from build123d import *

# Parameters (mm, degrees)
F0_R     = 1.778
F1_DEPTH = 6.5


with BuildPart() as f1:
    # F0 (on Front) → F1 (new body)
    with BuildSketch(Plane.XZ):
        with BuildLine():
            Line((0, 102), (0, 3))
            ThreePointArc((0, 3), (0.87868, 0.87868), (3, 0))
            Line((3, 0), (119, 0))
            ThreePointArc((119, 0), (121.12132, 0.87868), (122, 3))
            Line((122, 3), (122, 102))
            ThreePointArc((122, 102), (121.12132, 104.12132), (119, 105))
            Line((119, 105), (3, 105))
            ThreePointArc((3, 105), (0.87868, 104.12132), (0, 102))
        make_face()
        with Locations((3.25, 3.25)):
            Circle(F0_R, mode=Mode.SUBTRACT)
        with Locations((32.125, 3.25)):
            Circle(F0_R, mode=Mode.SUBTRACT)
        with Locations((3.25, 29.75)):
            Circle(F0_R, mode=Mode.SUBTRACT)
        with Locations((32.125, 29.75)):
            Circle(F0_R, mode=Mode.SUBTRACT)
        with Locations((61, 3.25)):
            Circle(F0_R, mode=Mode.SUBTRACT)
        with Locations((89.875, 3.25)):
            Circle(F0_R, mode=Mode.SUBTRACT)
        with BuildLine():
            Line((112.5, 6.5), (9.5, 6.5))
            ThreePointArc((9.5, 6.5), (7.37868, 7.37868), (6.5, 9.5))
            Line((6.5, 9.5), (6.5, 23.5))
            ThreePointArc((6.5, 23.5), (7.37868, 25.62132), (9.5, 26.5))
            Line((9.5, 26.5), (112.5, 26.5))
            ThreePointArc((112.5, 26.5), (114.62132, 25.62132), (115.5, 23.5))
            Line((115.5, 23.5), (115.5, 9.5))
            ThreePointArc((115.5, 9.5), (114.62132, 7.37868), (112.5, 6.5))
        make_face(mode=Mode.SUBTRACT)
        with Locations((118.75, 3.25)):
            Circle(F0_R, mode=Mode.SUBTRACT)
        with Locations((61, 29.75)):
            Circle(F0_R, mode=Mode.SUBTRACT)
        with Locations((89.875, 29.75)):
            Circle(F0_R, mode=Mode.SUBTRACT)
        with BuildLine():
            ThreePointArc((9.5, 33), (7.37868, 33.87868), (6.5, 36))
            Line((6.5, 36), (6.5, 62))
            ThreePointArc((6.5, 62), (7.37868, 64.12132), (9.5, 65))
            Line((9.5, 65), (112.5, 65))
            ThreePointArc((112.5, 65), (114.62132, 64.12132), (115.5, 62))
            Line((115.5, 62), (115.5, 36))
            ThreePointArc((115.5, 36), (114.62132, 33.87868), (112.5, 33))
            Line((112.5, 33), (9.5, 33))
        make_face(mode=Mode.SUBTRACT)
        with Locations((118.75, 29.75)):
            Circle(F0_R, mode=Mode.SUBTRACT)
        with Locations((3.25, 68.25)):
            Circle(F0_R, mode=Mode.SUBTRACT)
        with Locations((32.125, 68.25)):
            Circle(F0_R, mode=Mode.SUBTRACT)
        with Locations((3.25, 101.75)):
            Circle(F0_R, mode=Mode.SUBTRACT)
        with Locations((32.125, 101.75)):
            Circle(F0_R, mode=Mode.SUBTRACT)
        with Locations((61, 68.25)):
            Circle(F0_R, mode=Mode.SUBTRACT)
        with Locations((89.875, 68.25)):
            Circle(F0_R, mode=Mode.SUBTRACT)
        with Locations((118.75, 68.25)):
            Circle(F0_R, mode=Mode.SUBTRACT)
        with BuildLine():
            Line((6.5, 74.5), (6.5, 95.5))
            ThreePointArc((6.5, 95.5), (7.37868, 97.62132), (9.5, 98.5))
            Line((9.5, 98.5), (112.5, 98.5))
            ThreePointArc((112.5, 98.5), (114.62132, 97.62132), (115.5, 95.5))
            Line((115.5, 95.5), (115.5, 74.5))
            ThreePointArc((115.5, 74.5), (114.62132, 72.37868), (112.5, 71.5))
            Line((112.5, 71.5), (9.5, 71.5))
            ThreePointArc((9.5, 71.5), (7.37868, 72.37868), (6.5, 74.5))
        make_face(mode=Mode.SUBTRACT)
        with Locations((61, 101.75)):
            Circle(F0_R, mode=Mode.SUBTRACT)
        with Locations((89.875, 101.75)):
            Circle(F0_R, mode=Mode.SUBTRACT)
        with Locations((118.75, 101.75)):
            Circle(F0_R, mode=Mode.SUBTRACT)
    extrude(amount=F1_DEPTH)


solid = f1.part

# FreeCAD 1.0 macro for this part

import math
import FreeCAD as App
import Part
import Sketcher
from FreeCAD import Vector
Q = App.Units.Quantity

doc = App.newDocument("Part")
params = doc.addObject("Spreadsheet::Sheet", "Params")
for row, (alias, value) in enumerate([
    ("sketch1_radius", "3.000001 mm"),
    ("sketch1_width", "116 mm"),
    ("sketch1_width2", "103 mm"),
    ("sketch1_height", "99 mm"),
    ("sketch1_height2", "26 mm"),
    ("pad1_length", "6.5 mm"),
], start=1):
    params.set(f"A{row}", alias)
    params.set(f"B{row}", "=" + value)
    params.setAlias(f"B{row}", alias)

body = doc.addObject("PartDesign::Body", "Body")

# Sketch on XZ plane
sketch1 = doc.addObject("Sketcher::SketchObject", "Sketch")
body.addObject(sketch1)
sketch1.AttachmentSupport = (doc.XZ_Plane, [""])
sketch1.MapMode = "FlatFace"
sketch1.addGeometry(Part.LineSegment(Vector(0, 102, 0), Vector(0, 3, 0)), False)
sketch1.addGeometry(Part.ArcOfCircle(Part.Circle(Vector(3, 3, 0), Vector(0, 0, 1), 3), math.radians(-180), math.radians(-90)), False)
sketch1.addGeometry(Part.LineSegment(Vector(3, 0, 0), Vector(119, 0, 0)), False)
sketch1.addGeometry(Part.ArcOfCircle(Part.Circle(Vector(119, 3, 0), Vector(0, 0, 1), 3), math.radians(-90), math.radians(0)), False)
sketch1.addGeometry(Part.LineSegment(Vector(122, 3, 0), Vector(122, 102, 0)), False)
sketch1.addGeometry(Part.ArcOfCircle(Part.Circle(Vector(119, 102, 0), Vector(0, 0, 1), 3), math.radians(0), math.radians(90)), False)
sketch1.addGeometry(Part.LineSegment(Vector(119, 105, 0), Vector(3, 105, 0)), False)
sketch1.addGeometry(Part.ArcOfCircle(Part.Circle(Vector(3, 102, 0), Vector(0, 0, 1), 3), math.radians(90), math.radians(180)), False)
sketch1.addGeometry(Part.Circle(Vector(3.2, 3.2, 0), Vector(0, 0, 1), 1.8), False)
sketch1.addGeometry(Part.Circle(Vector(32.1, 3.2, 0), Vector(0, 0, 1), 1.8), False)
sketch1.addGeometry(Part.Circle(Vector(61, 3.2, 0), Vector(0, 0, 1), 1.8), False)
sketch1.addGeometry(Part.Circle(Vector(3.2, 29.8, 0), Vector(0, 0, 1), 1.8), False)
sketch1.addGeometry(Part.Circle(Vector(32.1, 29.8, 0), Vector(0, 0, 1), 1.8), False)
sketch1.addGeometry(Part.Circle(Vector(61, 29.8, 0), Vector(0, 0, 1), 1.8), False)
sketch1.addGeometry(Part.LineSegment(Vector(112.5, 33, 0), Vector(9.5, 33, 0)), False)
sketch1.addGeometry(Part.ArcOfCircle(Part.Circle(Vector(9.5, 36, 0), Vector(0, 0, 1), 3), math.radians(-180), math.radians(-90)), False)
sketch1.addGeometry(Part.LineSegment(Vector(6.5, 36, 0), Vector(6.5, 62, 0)), False)
sketch1.addGeometry(Part.ArcOfCircle(Part.Circle(Vector(9.5, 62, 0), Vector(0, 0, 1), 3), math.radians(90), math.radians(180)), False)
sketch1.addGeometry(Part.LineSegment(Vector(9.5, 65, 0), Vector(112.5, 65, 0)), False)
sketch1.addGeometry(Part.ArcOfCircle(Part.Circle(Vector(112.5, 62, 0), Vector(0, 0, 1), 3), math.radians(0), math.radians(90)), False)
sketch1.addGeometry(Part.LineSegment(Vector(115.5, 62, 0), Vector(115.5, 36, 0)), False)
sketch1.addGeometry(Part.ArcOfCircle(Part.Circle(Vector(112.5, 36, 0), Vector(0, 0, 1), 3), math.radians(-90), math.radians(0)), False)
sketch1.addGeometry(Part.Circle(Vector(89.9, 3.2, 0), Vector(0, 0, 1), 1.8), False)
sketch1.addGeometry(Part.ArcOfCircle(Part.Circle(Vector(112.5, 9.5, 0), Vector(0, 0, 1), 3), math.radians(-90), math.radians(0)), False)
sketch1.addGeometry(Part.LineSegment(Vector(112.5, 6.5, 0), Vector(9.5, 6.5, 0)), False)
sketch1.addGeometry(Part.ArcOfCircle(Part.Circle(Vector(9.5, 9.5, 0), Vector(0, 0, 1), 3), math.radians(-180), math.radians(-90)), False)
sketch1.addGeometry(Part.LineSegment(Vector(6.5, 9.5, 0), Vector(6.5, 23.5, 0)), False)
sketch1.addGeometry(Part.ArcOfCircle(Part.Circle(Vector(9.5, 23.5, 0), Vector(0, 0, 1), 3), math.radians(90), math.radians(180)), False)
sketch1.addGeometry(Part.LineSegment(Vector(9.5, 26.5, 0), Vector(112.5, 26.5, 0)), False)
sketch1.addGeometry(Part.ArcOfCircle(Part.Circle(Vector(112.5, 23.5, 0), Vector(0, 0, 1), 3), math.radians(0), math.radians(90)), False)
sketch1.addGeometry(Part.LineSegment(Vector(115.5, 23.5, 0), Vector(115.5, 9.5, 0)), False)
sketch1.addGeometry(Part.Circle(Vector(118.8, 3.2, 0), Vector(0, 0, 1), 1.8), False)
sketch1.addGeometry(Part.Circle(Vector(89.9, 29.8, 0), Vector(0, 0, 1), 1.8), False)
sketch1.addGeometry(Part.Circle(Vector(118.8, 29.8, 0), Vector(0, 0, 1), 1.8), False)
sketch1.addGeometry(Part.Circle(Vector(3.2, 68.2, 0), Vector(0, 0, 1), 1.8), False)
sketch1.addGeometry(Part.Circle(Vector(32.1, 68.2, 0), Vector(0, 0, 1), 1.8), False)
sketch1.addGeometry(Part.Circle(Vector(61, 68.2, 0), Vector(0, 0, 1), 1.8), False)
sketch1.addGeometry(Part.Circle(Vector(3.2, 101.8, 0), Vector(0, 0, 1), 1.8), False)
sketch1.addGeometry(Part.ArcOfCircle(Part.Circle(Vector(9.5, 74.5, 0), Vector(0, 0, 1), 3), math.radians(-180), math.radians(-90)), False)
sketch1.addGeometry(Part.LineSegment(Vector(6.5, 74.5, 0), Vector(6.5, 95.5, 0)), False)
sketch1.addGeometry(Part.ArcOfCircle(Part.Circle(Vector(9.5, 95.5, 0), Vector(0, 0, 1), 3), math.radians(90), math.radians(180)), False)
sketch1.addGeometry(Part.LineSegment(Vector(9.5, 98.5, 0), Vector(112.5, 98.5, 0)), False)
sketch1.addGeometry(Part.ArcOfCircle(Part.Circle(Vector(112.5, 95.5, 0), Vector(0, 0, 1), 3), math.radians(0), math.radians(90)), False)
sketch1.addGeometry(Part.LineSegment(Vector(115.5, 95.5, 0), Vector(115.5, 74.5, 0)), False)
sketch1.addGeometry(Part.ArcOfCircle(Part.Circle(Vector(112.5, 74.5, 0), Vector(0, 0, 1), 3), math.radians(-90), math.radians(0)), False)
sketch1.addGeometry(Part.LineSegment(Vector(112.5, 71.5, 0), Vector(9.5, 71.5, 0)), False)
sketch1.addGeometry(Part.Circle(Vector(32.1, 101.8, 0), Vector(0, 0, 1), 1.8), False)
sketch1.addGeometry(Part.Circle(Vector(61, 101.8, 0), Vector(0, 0, 1), 1.8), False)
sketch1.addGeometry(Part.Circle(Vector(89.9, 68.2, 0), Vector(0, 0, 1), 1.8), False)
sketch1.addGeometry(Part.Circle(Vector(118.8, 68.2, 0), Vector(0, 0, 1), 1.8), False)
sketch1.addGeometry(Part.Circle(Vector(89.9, 101.8, 0), Vector(0, 0, 1), 1.8), False)
sketch1.addGeometry(Part.Circle(Vector(118.8, 101.8, 0), Vector(0, 0, 1), 1.8), False)
sketch1.addConstraint(Sketcher.Constraint("Tangent", 0, 2, 1, 1))
sketch1.addConstraint(Sketcher.Constraint("Tangent", 1, 2, 2, 1))
sketch1.addConstraint(Sketcher.Constraint("Tangent", 2, 2, 3, 1))
sketch1.addConstraint(Sketcher.Constraint("Tangent", 3, 2, 4, 1))
sketch1.addConstraint(Sketcher.Constraint("Tangent", 4, 2, 5, 1))
sketch1.addConstraint(Sketcher.Constraint("Tangent", 5, 2, 6, 1))
sketch1.addConstraint(Sketcher.Constraint("Tangent", 6, 2, 7, 1))
sketch1.addConstraint(Sketcher.Constraint("Tangent", 7, 2, 0, 1))
sketch1.addConstraint(Sketcher.Constraint("Tangent", 14, 2, 15, 2))
sketch1.addConstraint(Sketcher.Constraint("Tangent", 15, 1, 16, 1))
sketch1.addConstraint(Sketcher.Constraint("Tangent", 16, 2, 17, 2))
sketch1.addConstraint(Sketcher.Constraint("Tangent", 17, 1, 18, 1))
sketch1.addConstraint(Sketcher.Constraint("Tangent", 18, 2, 19, 2))
sketch1.addConstraint(Sketcher.Constraint("Tangent", 19, 1, 20, 1))
sketch1.addConstraint(Sketcher.Constraint("Tangent", 20, 2, 21, 2))
sketch1.addConstraint(Sketcher.Constraint("Tangent", 21, 1, 14, 1))
sketch1.addConstraint(Sketcher.Constraint("Tangent", 23, 1, 24, 1))
sketch1.addConstraint(Sketcher.Constraint("Tangent", 24, 2, 25, 2))
sketch1.addConstraint(Sketcher.Constraint("Tangent", 25, 1, 26, 1))
sketch1.addConstraint(Sketcher.Constraint("Tangent", 26, 2, 27, 2))
sketch1.addConstraint(Sketcher.Constraint("Tangent", 27, 1, 28, 1))
sketch1.addConstraint(Sketcher.Constraint("Tangent", 28, 2, 29, 2))
sketch1.addConstraint(Sketcher.Constraint("Tangent", 29, 1, 30, 1))
sketch1.addConstraint(Sketcher.Constraint("Tangent", 30, 2, 23, 2))
sketch1.addConstraint(Sketcher.Constraint("Tangent", 38, 1, 39, 1))
sketch1.addConstraint(Sketcher.Constraint("Tangent", 39, 2, 40, 2))
sketch1.addConstraint(Sketcher.Constraint("Tangent", 40, 1, 41, 1))
sketch1.addConstraint(Sketcher.Constraint("Tangent", 41, 2, 42, 2))
sketch1.addConstraint(Sketcher.Constraint("Tangent", 42, 1, 43, 1))
sketch1.addConstraint(Sketcher.Constraint("Tangent", 43, 2, 44, 2))
sketch1.addConstraint(Sketcher.Constraint("Tangent", 44, 1, 45, 1))
sketch1.addConstraint(Sketcher.Constraint("Tangent", 45, 2, 38, 2))
sketch1.addConstraint(Sketcher.Constraint("Vertical", 0))
sketch1.addConstraint(Sketcher.Constraint("Horizontal", 2))
sketch1.addConstraint(Sketcher.Constraint("Vertical", 4))
sketch1.addConstraint(Sketcher.Constraint("Horizontal", 6))
sketch1.addConstraint(Sketcher.Constraint("Horizontal", 14))
sketch1.addConstraint(Sketcher.Constraint("Vertical", 16))
sketch1.addConstraint(Sketcher.Constraint("Horizontal", 18))
sketch1.addConstraint(Sketcher.Constraint("Vertical", 20))
sketch1.addConstraint(Sketcher.Constraint("Horizontal", 24))
sketch1.addConstraint(Sketcher.Constraint("Vertical", 26))
sketch1.addConstraint(Sketcher.Constraint("Horizontal", 28))
sketch1.addConstraint(Sketcher.Constraint("Vertical", 30))
sketch1.addConstraint(Sketcher.Constraint("Vertical", 39))
sketch1.addConstraint(Sketcher.Constraint("Horizontal", 41))
sketch1.addConstraint(Sketcher.Constraint("Vertical", 43))
sketch1.addConstraint(Sketcher.Constraint("Horizontal", 45))
sketch1.addConstraint(Sketcher.Constraint("Equal", 1, 3))
sketch1.addConstraint(Sketcher.Constraint("Equal", 3, 5))
sketch1.addConstraint(Sketcher.Constraint("Equal", 5, 7))
sketch1.addConstraint(Sketcher.Constraint("Equal", 8, 9))
sketch1.addConstraint(Sketcher.Constraint("Equal", 9, 10))
sketch1.addConstraint(Sketcher.Constraint("Equal", 10, 11))
sketch1.addConstraint(Sketcher.Constraint("Equal", 11, 12))
sketch1.addConstraint(Sketcher.Constraint("Equal", 12, 13))
sketch1.addConstraint(Sketcher.Constraint("Equal", 7, 15))
sketch1.addConstraint(Sketcher.Constraint("Equal", 15, 17))
sketch1.addConstraint(Sketcher.Constraint("Equal", 17, 19))
sketch1.addConstraint(Sketcher.Constraint("Equal", 19, 21))
sketch1.addConstraint(Sketcher.Constraint("Equal", 13, 22))
sketch1.addConstraint(Sketcher.Constraint("Equal", 21, 23))
sketch1.addConstraint(Sketcher.Constraint("Equal", 23, 25))
sketch1.addConstraint(Sketcher.Constraint("Equal", 25, 27))
sketch1.addConstraint(Sketcher.Constraint("Equal", 27, 29))
sketch1.addConstraint(Sketcher.Constraint("Equal", 22, 31))
sketch1.addConstraint(Sketcher.Constraint("Equal", 31, 32))
sketch1.addConstraint(Sketcher.Constraint("Equal", 32, 33))
sketch1.addConstraint(Sketcher.Constraint("Equal", 33, 34))
sketch1.addConstraint(Sketcher.Constraint("Equal", 34, 35))
sketch1.addConstraint(Sketcher.Constraint("Equal", 35, 36))
sketch1.addConstraint(Sketcher.Constraint("Equal", 36, 37))
sketch1.addConstraint(Sketcher.Constraint("Equal", 29, 38))
sketch1.addConstraint(Sketcher.Constraint("Equal", 38, 40))
sketch1.addConstraint(Sketcher.Constraint("Equal", 40, 42))
sketch1.addConstraint(Sketcher.Constraint("Equal", 42, 44))
sketch1.addConstraint(Sketcher.Constraint("Equal", 37, 46))
sketch1.addConstraint(Sketcher.Constraint("Equal", 46, 47))
sketch1.addConstraint(Sketcher.Constraint("Equal", 47, 48))
sketch1.addConstraint(Sketcher.Constraint("Equal", 48, 49))
sketch1.addConstraint(Sketcher.Constraint("Equal", 49, 50))
sketch1.addConstraint(Sketcher.Constraint("Equal", 50, 51))
sketch1.addConstraint(Sketcher.Constraint("PointOnObject", 0, 2, -2))
sketch1.addConstraint(Sketcher.Constraint("PointOnObject", 1, 2, -1))
sketch1.addConstraint(Sketcher.Constraint("Horizontal", 8, 3, 9, 3))
sketch1.addConstraint(Sketcher.Constraint("Horizontal", 9, 3, 10, 3))
sketch1.addConstraint(Sketcher.Constraint("Horizontal", 11, 3, 12, 3))
sketch1.addConstraint(Sketcher.Constraint("Horizontal", 12, 3, 13, 3))
sketch1.addConstraint(Sketcher.Constraint("Horizontal", 10, 3, 22, 3))
sketch1.addConstraint(Sketcher.Constraint("Horizontal", 22, 3, 31, 3))
sketch1.addConstraint(Sketcher.Constraint("Horizontal", 13, 3, 32, 3))
sketch1.addConstraint(Sketcher.Constraint("Horizontal", 32, 3, 33, 3))
sketch1.addConstraint(Sketcher.Constraint("Horizontal", 34, 3, 35, 3))
sketch1.addConstraint(Sketcher.Constraint("Horizontal", 35, 3, 36, 3))
sketch1.addConstraint(Sketcher.Constraint("Horizontal", 37, 3, 46, 3))
sketch1.addConstraint(Sketcher.Constraint("Horizontal", 46, 3, 47, 3))
sketch1.addConstraint(Sketcher.Constraint("Horizontal", 36, 3, 48, 3))
sketch1.addConstraint(Sketcher.Constraint("Horizontal", 48, 3, 49, 3))
sketch1.addConstraint(Sketcher.Constraint("Horizontal", 47, 3, 50, 3))
sketch1.addConstraint(Sketcher.Constraint("Horizontal", 50, 3, 51, 3))
sketch1.addConstraint(Sketcher.Constraint("Vertical", 8, 3, 11, 3))
sketch1.addConstraint(Sketcher.Constraint("Vertical", 9, 3, 12, 3))
sketch1.addConstraint(Sketcher.Constraint("Vertical", 10, 3, 13, 3))
sketch1.addConstraint(Sketcher.Constraint("Vertical", 21, 3, 23, 3))
sketch1.addConstraint(Sketcher.Constraint("Vertical", 17, 3, 25, 3))
sketch1.addConstraint(Sketcher.Constraint("Vertical", 22, 3, 32, 3))
sketch1.addConstraint(Sketcher.Constraint("Vertical", 31, 3, 33, 3))
sketch1.addConstraint(Sketcher.Constraint("Vertical", 11, 3, 34, 3))
sketch1.addConstraint(Sketcher.Constraint("Vertical", 12, 3, 35, 3))
sketch1.addConstraint(Sketcher.Constraint("Vertical", 13, 3, 36, 3))
sketch1.addConstraint(Sketcher.Constraint("Vertical", 34, 3, 37, 3))
sketch1.addConstraint(Sketcher.Constraint("Vertical", 27, 3, 38, 3))
sketch1.addConstraint(Sketcher.Constraint("Vertical", 29, 3, 42, 3))
sketch1.addConstraint(Sketcher.Constraint("Vertical", 35, 3, 46, 3))
sketch1.addConstraint(Sketcher.Constraint("Vertical", 36, 3, 47, 3))
sketch1.addConstraint(Sketcher.Constraint("Vertical", 32, 3, 48, 3))
sketch1.addConstraint(Sketcher.Constraint("Vertical", 33, 3, 49, 3))
sketch1.addConstraint(Sketcher.Constraint("Vertical", 48, 3, 50, 3))
sketch1.addConstraint(Sketcher.Constraint("Vertical", 49, 3, 51, 3))
sketch1.addConstraint(Sketcher.Constraint("Radius", 1, Q("3.000001 mm")))
sketch1.addConstraint(Sketcher.Constraint("DistanceX", 2, 1, 2, 2, Q("116 mm")))
sketch1.addConstraint(Sketcher.Constraint("DistanceX", 14, 2, 14, 1, Q("103 mm")))
sketch1.addConstraint(Sketcher.Constraint("DistanceY", 0, 2, 0, 1, Q("99 mm")))
sketch1.addConstraint(Sketcher.Constraint("DistanceY", 16, 1, 16, 2, Q("26 mm")))
sketch1.addConstraint(Sketcher.Constraint("DistanceY", 26, 1, 26, 2, Q("14 mm")))
sketch1.addConstraint(Sketcher.Constraint("DistanceY", 39, 1, 39, 2, Q("21 mm")))
sketch1.addConstraint(Sketcher.Constraint("Diameter", 8, Q("3.556 mm")))
sketch1.addConstraint(Sketcher.Constraint("DistanceX", -1, 1, 10, 3, Q("61 mm")))
sketch1.addConstraint(Sketcher.Constraint("DistanceY", -1, 1, 15, 3, Q("36.000001 mm")))
sketch1.addConstraint(Sketcher.Constraint("DistanceX", -1, 1, 15, 3, Q("9.500001 mm")))
sketch1.addConstraint(Sketcher.Constraint("DistanceY", -1, 1, 23, 3, Q("9.500001 mm")))
sketch1.addConstraint(Sketcher.Constraint("DistanceY", -1, 1, 38, 3, Q("74.500001 mm")))
sketch1.addConstraint(Sketcher.Constraint("DistanceX", -1, 1, 8, 3, Q("3.25 mm")))
sketch1.addConstraint(Sketcher.Constraint("DistanceY", -1, 1, 8, 3, Q("3.25 mm")))
sketch1.addConstraint(Sketcher.Constraint("DistanceY", -1, 1, 11, 3, Q("29.75 mm")))
sketch1.addConstraint(Sketcher.Constraint("DistanceX", -1, 1, 31, 3, Q("118.75 mm")))
sketch1.addConstraint(Sketcher.Constraint("DistanceY", -1, 1, 34, 3, Q("68.25 mm")))
sketch1.addConstraint(Sketcher.Constraint("DistanceY", -1, 1, 37, 3, Q("101.75 mm")))
sketch1.addConstraint(Sketcher.Constraint("DistanceX", -1, 1, 9, 3, Q("32.125 mm")))
sketch1.addConstraint(Sketcher.Constraint("DistanceX", -1, 1, 22, 3, Q("89.875 mm")))
sketch1.setExpression("Constraints[119]", "Params.sketch1_radius")
sketch1.setExpression("Constraints[120]", "Params.sketch1_width")
sketch1.setExpression("Constraints[121]", "Params.sketch1_width2")
sketch1.setExpression("Constraints[122]", "Params.sketch1_height")
sketch1.setExpression("Constraints[123]", "Params.sketch1_height2")
pad1 = doc.addObject("PartDesign::Pad", "Pad")
body.addObject(pad1)
pad1.Profile = sketch1
pad1.setExpression("Length", "Params.pad1_length")

doc.recompute()
